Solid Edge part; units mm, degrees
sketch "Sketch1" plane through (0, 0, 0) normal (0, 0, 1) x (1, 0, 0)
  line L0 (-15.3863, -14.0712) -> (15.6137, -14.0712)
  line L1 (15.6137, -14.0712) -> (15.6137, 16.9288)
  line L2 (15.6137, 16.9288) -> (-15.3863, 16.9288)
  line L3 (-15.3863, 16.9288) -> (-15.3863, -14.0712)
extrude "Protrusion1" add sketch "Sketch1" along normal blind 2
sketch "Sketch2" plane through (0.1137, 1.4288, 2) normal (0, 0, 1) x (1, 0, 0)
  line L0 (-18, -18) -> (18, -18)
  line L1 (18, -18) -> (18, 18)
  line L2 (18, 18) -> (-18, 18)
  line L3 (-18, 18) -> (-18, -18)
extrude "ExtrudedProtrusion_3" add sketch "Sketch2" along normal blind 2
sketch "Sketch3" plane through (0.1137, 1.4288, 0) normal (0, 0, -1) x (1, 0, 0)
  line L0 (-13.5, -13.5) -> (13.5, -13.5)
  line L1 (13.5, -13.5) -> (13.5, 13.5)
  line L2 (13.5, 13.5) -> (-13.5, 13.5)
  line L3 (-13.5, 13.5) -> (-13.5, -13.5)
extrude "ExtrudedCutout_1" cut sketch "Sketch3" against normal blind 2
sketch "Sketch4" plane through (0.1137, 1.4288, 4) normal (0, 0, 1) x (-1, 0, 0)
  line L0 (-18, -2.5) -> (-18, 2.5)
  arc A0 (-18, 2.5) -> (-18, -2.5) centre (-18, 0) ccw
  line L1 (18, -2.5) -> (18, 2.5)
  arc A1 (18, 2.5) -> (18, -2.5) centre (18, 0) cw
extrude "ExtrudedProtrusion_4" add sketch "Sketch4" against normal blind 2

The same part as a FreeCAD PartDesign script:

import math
import FreeCAD as App
import Part
import Sketcher
from FreeCAD import Vector
Q = App.Units.Quantity

doc = App.newDocument("Part")
body = doc.addObject("PartDesign::Body", "Body")

# Sketch on XY plane
sketch1 = doc.addObject("Sketcher::SketchObject", "Sketch")
body.addObject(sketch1)
sketch1.AttachmentSupport = (doc.XY_Plane, [""])
sketch1.MapMode = "FlatFace"
sketch1.addGeometry(Part.LineSegment(Vector(-15, 17, 0), Vector(-15, -14, 0)), False)
sketch1.addGeometry(Part.LineSegment(Vector(-15, -14, 0), Vector(16, -14, 0)), False)
sketch1.addGeometry(Part.LineSegment(Vector(16, -14, 0), Vector(16, 17, 0)), False)
sketch1.addGeometry(Part.LineSegment(Vector(16, 17, 0), Vector(-15, 17, 0)), False)
sketch1.addConstraint(Sketcher.Constraint("Coincident", 0, 2, 1, 1))
sketch1.addConstraint(Sketcher.Constraint("Coincident", 1, 2, 2, 1))
sketch1.addConstraint(Sketcher.Constraint("Coincident", 2, 2, 3, 1))
sketch1.addConstraint(Sketcher.Constraint("Coincident", 3, 2, 0, 1))
sketch1.addConstraint(Sketcher.Constraint("Vertical", 0))
sketch1.addConstraint(Sketcher.Constraint("Horizontal", 1))
sketch1.addConstraint(Sketcher.Constraint("Vertical", 2))
sketch1.addConstraint(Sketcher.Constraint("Horizontal", 3))
sketch1.addConstraint(Sketcher.Constraint("Equal", 3, 0))
sketch1.addConstraint(Sketcher.Constraint("DistanceX", 1, 1, 1, 2, Q("31 mm")))
sketch1.addConstraint(Sketcher.Constraint("DistanceX", 0, 2, -1, 1, Q("15.3863 mm")))
sketch1.addConstraint(Sketcher.Constraint("DistanceY", 0, 2, -1, 1, Q("14.0712 mm")))
pad1 = doc.addObject("PartDesign::Pad", "Pad")
body.addObject(pad1)
pad1.Profile = sketch1
pad1.Length = 2

# Sketch on XY plane
sketch2 = doc.addObject("Sketcher::SketchObject", "Sketch001")
body.addObject(sketch2)
sketch2.AttachmentSupport = (doc.XY_Plane, [""])
sketch2.MapMode = "FlatFace"
sketch2.AttachmentOffset = App.Placement(Vector(0, 0, 2), App.Rotation())
sketch2.addGeometry(Part.LineSegment(Vector(-18, 19, 0), Vector(-18, -17, 0)), False)
sketch2.addGeometry(Part.LineSegment(Vector(-18, -17, 0), Vector(18, -17, 0)), False)
sketch2.addGeometry(Part.LineSegment(Vector(18, -17, 0), Vector(18, 19, 0)), False)
sketch2.addGeometry(Part.LineSegment(Vector(18, 19, 0), Vector(-18, 19, 0)), False)
sketch2.addConstraint(Sketcher.Constraint("Coincident", 0, 2, 1, 1))
sketch2.addConstraint(Sketcher.Constraint("Coincident", 1, 2, 2, 1))
sketch2.addConstraint(Sketcher.Constraint("Coincident", 2, 2, 3, 1))
sketch2.addConstraint(Sketcher.Constraint("Coincident", 3, 2, 0, 1))
sketch2.addConstraint(Sketcher.Constraint("Vertical", 0))
sketch2.addConstraint(Sketcher.Constraint("Horizontal", 1))
sketch2.addConstraint(Sketcher.Constraint("Vertical", 2))
sketch2.addConstraint(Sketcher.Constraint("Horizontal", 3))
sketch2.addConstraint(Sketcher.Constraint("Equal", 3, 0))
sketch2.addConstraint(Sketcher.Constraint("DistanceX", 1, 1, 1, 2, Q("36 mm")))
sketch2.addConstraint(Sketcher.Constraint("DistanceX", 0, 2, -1, 1, Q("17.8863 mm")))
sketch2.addConstraint(Sketcher.Constraint("DistanceY", 0, 2, -1, 1, Q("16.5712 mm")))
pad2 = doc.addObject("PartDesign::Pad", "Pad001")
body.addObject(pad2)
pad2.Profile = sketch2
pad2.Length = 2

# Sketch on XY plane
sketch3 = doc.addObject("Sketcher::SketchObject", "Sketch002")
body.addObject(sketch3)
sketch3.AttachmentSupport = (doc.XY_Plane, [""])
sketch3.MapMode = "FlatFace"
sketch3.addGeometry(Part.LineSegment(Vector(-13, -12, 0), Vector(-13, 15, 0)), False)
sketch3.addGeometry(Part.LineSegment(Vector(-13, 15, 0), Vector(14, 15, 0)), False)
sketch3.addGeometry(Part.LineSegment(Vector(14, 15, 0), Vector(14, -12, 0)), False)
sketch3.addGeometry(Part.LineSegment(Vector(14, -12, 0), Vector(-13, -12, 0)), False)
sketch3.addConstraint(Sketcher.Constraint("Coincident", 0, 2, 1, 1))
sketch3.addConstraint(Sketcher.Constraint("Coincident", 1, 2, 2, 1))
sketch3.addConstraint(Sketcher.Constraint("Coincident", 2, 2, 3, 1))
sketch3.addConstraint(Sketcher.Constraint("Coincident", 3, 2, 0, 1))
sketch3.addConstraint(Sketcher.Constraint("Vertical", 0))
sketch3.addConstraint(Sketcher.Constraint("Horizontal", 1))
sketch3.addConstraint(Sketcher.Constraint("Vertical", 2))
sketch3.addConstraint(Sketcher.Constraint("Horizontal", 3))
sketch3.addConstraint(Sketcher.Constraint("Equal", 3, 0))
sketch3.addConstraint(Sketcher.Constraint("DistanceX", 1, 1, 1, 2, Q("27 mm")))
sketch3.addConstraint(Sketcher.Constraint("DistanceX", 0, 2, -1, 1, Q("13.3863 mm")))
sketch3.addConstraint(Sketcher.Constraint("DistanceY", -1, 1, 0, 2, Q("14.9288 mm")))
pocket1 = doc.addObject("PartDesign::Pocket", "Pocket")
body.addObject(pocket1)
pocket1.Profile = sketch3
pocket1.Length = 2
pocket1.Reversed = True

# Sketch on XY plane
sketch4 = doc.addObject("Sketcher::SketchObject", "Sketch003")
body.addObject(sketch4)
sketch4.AttachmentSupport = (doc.XY_Plane, [""])
sketch4.MapMode = "FlatFace"
sketch4.AttachmentOffset = App.Placement(Vector(0, 0, 4), App.Rotation())
sketch4.addGeometry(Part.ArcOfCircle(Part.Circle(Vector(18.1, 1.4, 0), Vector(0, 0, 1), 2.5), math.radians(-90), math.radians(90)), False)
sketch4.addGeometry(Part.LineSegment(Vector(18.1, 3.9, 0), Vector(18.1, -1.1, 0)), False)
sketch4.addGeometry(Part.LineSegment(Vector(-17.9, -1.1, 0), Vector(-17.9, 3.9, 0)), False)
sketch4.addGeometry(Part.ArcOfCircle(Part.Circle(Vector(-17.9, 1.4, 0), Vector(0, 0, 1), 2.5), math.radians(90), math.radians(270)), False)
sketch4.addConstraint(Sketcher.Constraint("Coincident", 0, 1, 1, 2))
sketch4.addConstraint(Sketcher.Constraint("Coincident", 1, 1, 0, 2))
sketch4.addConstraint(Sketcher.Constraint("Coincident", 2, 1, 3, 2))
sketch4.addConstraint(Sketcher.Constraint("Coincident", 3, 1, 2, 2))
sketch4.addConstraint(Sketcher.Constraint("Vertical", 1))
sketch4.addConstraint(Sketcher.Constraint("Vertical", 2))
sketch4.addConstraint(Sketcher.Constraint("Equal", 0, 3))
sketch4.addConstraint(Sketcher.Constraint("Horizontal", 0, 3, 3, 3))
sketch4.addConstraint(Sketcher.Constraint("Vertical", 3, 3, 2, 1))
sketch4.addConstraint(Sketcher.Constraint("Radius", 0, Q("2.5 mm")))
sketch4.addConstraint(Sketcher.Constraint("DistanceX", 3, 3, 0, 3, Q("36 mm")))
sketch4.addConstraint(Sketcher.Constraint("DistanceX", 3, 3, 0, 1, Q("36 mm")))
sketch4.addConstraint(Sketcher.Constraint("DistanceX", -1, 1, 0, 3, Q("18.1137 mm")))
sketch4.addConstraint(Sketcher.Constraint("DistanceY", -1, 1, 0, 3, Q("1.4288 mm")))
pad3 = doc.addObject("PartDesign::Pad", "Pad002")
body.addObject(pad3)
pad3.Profile = sketch4
pad3.Length = 2
pad3.Reversed = True

doc.recompute()
